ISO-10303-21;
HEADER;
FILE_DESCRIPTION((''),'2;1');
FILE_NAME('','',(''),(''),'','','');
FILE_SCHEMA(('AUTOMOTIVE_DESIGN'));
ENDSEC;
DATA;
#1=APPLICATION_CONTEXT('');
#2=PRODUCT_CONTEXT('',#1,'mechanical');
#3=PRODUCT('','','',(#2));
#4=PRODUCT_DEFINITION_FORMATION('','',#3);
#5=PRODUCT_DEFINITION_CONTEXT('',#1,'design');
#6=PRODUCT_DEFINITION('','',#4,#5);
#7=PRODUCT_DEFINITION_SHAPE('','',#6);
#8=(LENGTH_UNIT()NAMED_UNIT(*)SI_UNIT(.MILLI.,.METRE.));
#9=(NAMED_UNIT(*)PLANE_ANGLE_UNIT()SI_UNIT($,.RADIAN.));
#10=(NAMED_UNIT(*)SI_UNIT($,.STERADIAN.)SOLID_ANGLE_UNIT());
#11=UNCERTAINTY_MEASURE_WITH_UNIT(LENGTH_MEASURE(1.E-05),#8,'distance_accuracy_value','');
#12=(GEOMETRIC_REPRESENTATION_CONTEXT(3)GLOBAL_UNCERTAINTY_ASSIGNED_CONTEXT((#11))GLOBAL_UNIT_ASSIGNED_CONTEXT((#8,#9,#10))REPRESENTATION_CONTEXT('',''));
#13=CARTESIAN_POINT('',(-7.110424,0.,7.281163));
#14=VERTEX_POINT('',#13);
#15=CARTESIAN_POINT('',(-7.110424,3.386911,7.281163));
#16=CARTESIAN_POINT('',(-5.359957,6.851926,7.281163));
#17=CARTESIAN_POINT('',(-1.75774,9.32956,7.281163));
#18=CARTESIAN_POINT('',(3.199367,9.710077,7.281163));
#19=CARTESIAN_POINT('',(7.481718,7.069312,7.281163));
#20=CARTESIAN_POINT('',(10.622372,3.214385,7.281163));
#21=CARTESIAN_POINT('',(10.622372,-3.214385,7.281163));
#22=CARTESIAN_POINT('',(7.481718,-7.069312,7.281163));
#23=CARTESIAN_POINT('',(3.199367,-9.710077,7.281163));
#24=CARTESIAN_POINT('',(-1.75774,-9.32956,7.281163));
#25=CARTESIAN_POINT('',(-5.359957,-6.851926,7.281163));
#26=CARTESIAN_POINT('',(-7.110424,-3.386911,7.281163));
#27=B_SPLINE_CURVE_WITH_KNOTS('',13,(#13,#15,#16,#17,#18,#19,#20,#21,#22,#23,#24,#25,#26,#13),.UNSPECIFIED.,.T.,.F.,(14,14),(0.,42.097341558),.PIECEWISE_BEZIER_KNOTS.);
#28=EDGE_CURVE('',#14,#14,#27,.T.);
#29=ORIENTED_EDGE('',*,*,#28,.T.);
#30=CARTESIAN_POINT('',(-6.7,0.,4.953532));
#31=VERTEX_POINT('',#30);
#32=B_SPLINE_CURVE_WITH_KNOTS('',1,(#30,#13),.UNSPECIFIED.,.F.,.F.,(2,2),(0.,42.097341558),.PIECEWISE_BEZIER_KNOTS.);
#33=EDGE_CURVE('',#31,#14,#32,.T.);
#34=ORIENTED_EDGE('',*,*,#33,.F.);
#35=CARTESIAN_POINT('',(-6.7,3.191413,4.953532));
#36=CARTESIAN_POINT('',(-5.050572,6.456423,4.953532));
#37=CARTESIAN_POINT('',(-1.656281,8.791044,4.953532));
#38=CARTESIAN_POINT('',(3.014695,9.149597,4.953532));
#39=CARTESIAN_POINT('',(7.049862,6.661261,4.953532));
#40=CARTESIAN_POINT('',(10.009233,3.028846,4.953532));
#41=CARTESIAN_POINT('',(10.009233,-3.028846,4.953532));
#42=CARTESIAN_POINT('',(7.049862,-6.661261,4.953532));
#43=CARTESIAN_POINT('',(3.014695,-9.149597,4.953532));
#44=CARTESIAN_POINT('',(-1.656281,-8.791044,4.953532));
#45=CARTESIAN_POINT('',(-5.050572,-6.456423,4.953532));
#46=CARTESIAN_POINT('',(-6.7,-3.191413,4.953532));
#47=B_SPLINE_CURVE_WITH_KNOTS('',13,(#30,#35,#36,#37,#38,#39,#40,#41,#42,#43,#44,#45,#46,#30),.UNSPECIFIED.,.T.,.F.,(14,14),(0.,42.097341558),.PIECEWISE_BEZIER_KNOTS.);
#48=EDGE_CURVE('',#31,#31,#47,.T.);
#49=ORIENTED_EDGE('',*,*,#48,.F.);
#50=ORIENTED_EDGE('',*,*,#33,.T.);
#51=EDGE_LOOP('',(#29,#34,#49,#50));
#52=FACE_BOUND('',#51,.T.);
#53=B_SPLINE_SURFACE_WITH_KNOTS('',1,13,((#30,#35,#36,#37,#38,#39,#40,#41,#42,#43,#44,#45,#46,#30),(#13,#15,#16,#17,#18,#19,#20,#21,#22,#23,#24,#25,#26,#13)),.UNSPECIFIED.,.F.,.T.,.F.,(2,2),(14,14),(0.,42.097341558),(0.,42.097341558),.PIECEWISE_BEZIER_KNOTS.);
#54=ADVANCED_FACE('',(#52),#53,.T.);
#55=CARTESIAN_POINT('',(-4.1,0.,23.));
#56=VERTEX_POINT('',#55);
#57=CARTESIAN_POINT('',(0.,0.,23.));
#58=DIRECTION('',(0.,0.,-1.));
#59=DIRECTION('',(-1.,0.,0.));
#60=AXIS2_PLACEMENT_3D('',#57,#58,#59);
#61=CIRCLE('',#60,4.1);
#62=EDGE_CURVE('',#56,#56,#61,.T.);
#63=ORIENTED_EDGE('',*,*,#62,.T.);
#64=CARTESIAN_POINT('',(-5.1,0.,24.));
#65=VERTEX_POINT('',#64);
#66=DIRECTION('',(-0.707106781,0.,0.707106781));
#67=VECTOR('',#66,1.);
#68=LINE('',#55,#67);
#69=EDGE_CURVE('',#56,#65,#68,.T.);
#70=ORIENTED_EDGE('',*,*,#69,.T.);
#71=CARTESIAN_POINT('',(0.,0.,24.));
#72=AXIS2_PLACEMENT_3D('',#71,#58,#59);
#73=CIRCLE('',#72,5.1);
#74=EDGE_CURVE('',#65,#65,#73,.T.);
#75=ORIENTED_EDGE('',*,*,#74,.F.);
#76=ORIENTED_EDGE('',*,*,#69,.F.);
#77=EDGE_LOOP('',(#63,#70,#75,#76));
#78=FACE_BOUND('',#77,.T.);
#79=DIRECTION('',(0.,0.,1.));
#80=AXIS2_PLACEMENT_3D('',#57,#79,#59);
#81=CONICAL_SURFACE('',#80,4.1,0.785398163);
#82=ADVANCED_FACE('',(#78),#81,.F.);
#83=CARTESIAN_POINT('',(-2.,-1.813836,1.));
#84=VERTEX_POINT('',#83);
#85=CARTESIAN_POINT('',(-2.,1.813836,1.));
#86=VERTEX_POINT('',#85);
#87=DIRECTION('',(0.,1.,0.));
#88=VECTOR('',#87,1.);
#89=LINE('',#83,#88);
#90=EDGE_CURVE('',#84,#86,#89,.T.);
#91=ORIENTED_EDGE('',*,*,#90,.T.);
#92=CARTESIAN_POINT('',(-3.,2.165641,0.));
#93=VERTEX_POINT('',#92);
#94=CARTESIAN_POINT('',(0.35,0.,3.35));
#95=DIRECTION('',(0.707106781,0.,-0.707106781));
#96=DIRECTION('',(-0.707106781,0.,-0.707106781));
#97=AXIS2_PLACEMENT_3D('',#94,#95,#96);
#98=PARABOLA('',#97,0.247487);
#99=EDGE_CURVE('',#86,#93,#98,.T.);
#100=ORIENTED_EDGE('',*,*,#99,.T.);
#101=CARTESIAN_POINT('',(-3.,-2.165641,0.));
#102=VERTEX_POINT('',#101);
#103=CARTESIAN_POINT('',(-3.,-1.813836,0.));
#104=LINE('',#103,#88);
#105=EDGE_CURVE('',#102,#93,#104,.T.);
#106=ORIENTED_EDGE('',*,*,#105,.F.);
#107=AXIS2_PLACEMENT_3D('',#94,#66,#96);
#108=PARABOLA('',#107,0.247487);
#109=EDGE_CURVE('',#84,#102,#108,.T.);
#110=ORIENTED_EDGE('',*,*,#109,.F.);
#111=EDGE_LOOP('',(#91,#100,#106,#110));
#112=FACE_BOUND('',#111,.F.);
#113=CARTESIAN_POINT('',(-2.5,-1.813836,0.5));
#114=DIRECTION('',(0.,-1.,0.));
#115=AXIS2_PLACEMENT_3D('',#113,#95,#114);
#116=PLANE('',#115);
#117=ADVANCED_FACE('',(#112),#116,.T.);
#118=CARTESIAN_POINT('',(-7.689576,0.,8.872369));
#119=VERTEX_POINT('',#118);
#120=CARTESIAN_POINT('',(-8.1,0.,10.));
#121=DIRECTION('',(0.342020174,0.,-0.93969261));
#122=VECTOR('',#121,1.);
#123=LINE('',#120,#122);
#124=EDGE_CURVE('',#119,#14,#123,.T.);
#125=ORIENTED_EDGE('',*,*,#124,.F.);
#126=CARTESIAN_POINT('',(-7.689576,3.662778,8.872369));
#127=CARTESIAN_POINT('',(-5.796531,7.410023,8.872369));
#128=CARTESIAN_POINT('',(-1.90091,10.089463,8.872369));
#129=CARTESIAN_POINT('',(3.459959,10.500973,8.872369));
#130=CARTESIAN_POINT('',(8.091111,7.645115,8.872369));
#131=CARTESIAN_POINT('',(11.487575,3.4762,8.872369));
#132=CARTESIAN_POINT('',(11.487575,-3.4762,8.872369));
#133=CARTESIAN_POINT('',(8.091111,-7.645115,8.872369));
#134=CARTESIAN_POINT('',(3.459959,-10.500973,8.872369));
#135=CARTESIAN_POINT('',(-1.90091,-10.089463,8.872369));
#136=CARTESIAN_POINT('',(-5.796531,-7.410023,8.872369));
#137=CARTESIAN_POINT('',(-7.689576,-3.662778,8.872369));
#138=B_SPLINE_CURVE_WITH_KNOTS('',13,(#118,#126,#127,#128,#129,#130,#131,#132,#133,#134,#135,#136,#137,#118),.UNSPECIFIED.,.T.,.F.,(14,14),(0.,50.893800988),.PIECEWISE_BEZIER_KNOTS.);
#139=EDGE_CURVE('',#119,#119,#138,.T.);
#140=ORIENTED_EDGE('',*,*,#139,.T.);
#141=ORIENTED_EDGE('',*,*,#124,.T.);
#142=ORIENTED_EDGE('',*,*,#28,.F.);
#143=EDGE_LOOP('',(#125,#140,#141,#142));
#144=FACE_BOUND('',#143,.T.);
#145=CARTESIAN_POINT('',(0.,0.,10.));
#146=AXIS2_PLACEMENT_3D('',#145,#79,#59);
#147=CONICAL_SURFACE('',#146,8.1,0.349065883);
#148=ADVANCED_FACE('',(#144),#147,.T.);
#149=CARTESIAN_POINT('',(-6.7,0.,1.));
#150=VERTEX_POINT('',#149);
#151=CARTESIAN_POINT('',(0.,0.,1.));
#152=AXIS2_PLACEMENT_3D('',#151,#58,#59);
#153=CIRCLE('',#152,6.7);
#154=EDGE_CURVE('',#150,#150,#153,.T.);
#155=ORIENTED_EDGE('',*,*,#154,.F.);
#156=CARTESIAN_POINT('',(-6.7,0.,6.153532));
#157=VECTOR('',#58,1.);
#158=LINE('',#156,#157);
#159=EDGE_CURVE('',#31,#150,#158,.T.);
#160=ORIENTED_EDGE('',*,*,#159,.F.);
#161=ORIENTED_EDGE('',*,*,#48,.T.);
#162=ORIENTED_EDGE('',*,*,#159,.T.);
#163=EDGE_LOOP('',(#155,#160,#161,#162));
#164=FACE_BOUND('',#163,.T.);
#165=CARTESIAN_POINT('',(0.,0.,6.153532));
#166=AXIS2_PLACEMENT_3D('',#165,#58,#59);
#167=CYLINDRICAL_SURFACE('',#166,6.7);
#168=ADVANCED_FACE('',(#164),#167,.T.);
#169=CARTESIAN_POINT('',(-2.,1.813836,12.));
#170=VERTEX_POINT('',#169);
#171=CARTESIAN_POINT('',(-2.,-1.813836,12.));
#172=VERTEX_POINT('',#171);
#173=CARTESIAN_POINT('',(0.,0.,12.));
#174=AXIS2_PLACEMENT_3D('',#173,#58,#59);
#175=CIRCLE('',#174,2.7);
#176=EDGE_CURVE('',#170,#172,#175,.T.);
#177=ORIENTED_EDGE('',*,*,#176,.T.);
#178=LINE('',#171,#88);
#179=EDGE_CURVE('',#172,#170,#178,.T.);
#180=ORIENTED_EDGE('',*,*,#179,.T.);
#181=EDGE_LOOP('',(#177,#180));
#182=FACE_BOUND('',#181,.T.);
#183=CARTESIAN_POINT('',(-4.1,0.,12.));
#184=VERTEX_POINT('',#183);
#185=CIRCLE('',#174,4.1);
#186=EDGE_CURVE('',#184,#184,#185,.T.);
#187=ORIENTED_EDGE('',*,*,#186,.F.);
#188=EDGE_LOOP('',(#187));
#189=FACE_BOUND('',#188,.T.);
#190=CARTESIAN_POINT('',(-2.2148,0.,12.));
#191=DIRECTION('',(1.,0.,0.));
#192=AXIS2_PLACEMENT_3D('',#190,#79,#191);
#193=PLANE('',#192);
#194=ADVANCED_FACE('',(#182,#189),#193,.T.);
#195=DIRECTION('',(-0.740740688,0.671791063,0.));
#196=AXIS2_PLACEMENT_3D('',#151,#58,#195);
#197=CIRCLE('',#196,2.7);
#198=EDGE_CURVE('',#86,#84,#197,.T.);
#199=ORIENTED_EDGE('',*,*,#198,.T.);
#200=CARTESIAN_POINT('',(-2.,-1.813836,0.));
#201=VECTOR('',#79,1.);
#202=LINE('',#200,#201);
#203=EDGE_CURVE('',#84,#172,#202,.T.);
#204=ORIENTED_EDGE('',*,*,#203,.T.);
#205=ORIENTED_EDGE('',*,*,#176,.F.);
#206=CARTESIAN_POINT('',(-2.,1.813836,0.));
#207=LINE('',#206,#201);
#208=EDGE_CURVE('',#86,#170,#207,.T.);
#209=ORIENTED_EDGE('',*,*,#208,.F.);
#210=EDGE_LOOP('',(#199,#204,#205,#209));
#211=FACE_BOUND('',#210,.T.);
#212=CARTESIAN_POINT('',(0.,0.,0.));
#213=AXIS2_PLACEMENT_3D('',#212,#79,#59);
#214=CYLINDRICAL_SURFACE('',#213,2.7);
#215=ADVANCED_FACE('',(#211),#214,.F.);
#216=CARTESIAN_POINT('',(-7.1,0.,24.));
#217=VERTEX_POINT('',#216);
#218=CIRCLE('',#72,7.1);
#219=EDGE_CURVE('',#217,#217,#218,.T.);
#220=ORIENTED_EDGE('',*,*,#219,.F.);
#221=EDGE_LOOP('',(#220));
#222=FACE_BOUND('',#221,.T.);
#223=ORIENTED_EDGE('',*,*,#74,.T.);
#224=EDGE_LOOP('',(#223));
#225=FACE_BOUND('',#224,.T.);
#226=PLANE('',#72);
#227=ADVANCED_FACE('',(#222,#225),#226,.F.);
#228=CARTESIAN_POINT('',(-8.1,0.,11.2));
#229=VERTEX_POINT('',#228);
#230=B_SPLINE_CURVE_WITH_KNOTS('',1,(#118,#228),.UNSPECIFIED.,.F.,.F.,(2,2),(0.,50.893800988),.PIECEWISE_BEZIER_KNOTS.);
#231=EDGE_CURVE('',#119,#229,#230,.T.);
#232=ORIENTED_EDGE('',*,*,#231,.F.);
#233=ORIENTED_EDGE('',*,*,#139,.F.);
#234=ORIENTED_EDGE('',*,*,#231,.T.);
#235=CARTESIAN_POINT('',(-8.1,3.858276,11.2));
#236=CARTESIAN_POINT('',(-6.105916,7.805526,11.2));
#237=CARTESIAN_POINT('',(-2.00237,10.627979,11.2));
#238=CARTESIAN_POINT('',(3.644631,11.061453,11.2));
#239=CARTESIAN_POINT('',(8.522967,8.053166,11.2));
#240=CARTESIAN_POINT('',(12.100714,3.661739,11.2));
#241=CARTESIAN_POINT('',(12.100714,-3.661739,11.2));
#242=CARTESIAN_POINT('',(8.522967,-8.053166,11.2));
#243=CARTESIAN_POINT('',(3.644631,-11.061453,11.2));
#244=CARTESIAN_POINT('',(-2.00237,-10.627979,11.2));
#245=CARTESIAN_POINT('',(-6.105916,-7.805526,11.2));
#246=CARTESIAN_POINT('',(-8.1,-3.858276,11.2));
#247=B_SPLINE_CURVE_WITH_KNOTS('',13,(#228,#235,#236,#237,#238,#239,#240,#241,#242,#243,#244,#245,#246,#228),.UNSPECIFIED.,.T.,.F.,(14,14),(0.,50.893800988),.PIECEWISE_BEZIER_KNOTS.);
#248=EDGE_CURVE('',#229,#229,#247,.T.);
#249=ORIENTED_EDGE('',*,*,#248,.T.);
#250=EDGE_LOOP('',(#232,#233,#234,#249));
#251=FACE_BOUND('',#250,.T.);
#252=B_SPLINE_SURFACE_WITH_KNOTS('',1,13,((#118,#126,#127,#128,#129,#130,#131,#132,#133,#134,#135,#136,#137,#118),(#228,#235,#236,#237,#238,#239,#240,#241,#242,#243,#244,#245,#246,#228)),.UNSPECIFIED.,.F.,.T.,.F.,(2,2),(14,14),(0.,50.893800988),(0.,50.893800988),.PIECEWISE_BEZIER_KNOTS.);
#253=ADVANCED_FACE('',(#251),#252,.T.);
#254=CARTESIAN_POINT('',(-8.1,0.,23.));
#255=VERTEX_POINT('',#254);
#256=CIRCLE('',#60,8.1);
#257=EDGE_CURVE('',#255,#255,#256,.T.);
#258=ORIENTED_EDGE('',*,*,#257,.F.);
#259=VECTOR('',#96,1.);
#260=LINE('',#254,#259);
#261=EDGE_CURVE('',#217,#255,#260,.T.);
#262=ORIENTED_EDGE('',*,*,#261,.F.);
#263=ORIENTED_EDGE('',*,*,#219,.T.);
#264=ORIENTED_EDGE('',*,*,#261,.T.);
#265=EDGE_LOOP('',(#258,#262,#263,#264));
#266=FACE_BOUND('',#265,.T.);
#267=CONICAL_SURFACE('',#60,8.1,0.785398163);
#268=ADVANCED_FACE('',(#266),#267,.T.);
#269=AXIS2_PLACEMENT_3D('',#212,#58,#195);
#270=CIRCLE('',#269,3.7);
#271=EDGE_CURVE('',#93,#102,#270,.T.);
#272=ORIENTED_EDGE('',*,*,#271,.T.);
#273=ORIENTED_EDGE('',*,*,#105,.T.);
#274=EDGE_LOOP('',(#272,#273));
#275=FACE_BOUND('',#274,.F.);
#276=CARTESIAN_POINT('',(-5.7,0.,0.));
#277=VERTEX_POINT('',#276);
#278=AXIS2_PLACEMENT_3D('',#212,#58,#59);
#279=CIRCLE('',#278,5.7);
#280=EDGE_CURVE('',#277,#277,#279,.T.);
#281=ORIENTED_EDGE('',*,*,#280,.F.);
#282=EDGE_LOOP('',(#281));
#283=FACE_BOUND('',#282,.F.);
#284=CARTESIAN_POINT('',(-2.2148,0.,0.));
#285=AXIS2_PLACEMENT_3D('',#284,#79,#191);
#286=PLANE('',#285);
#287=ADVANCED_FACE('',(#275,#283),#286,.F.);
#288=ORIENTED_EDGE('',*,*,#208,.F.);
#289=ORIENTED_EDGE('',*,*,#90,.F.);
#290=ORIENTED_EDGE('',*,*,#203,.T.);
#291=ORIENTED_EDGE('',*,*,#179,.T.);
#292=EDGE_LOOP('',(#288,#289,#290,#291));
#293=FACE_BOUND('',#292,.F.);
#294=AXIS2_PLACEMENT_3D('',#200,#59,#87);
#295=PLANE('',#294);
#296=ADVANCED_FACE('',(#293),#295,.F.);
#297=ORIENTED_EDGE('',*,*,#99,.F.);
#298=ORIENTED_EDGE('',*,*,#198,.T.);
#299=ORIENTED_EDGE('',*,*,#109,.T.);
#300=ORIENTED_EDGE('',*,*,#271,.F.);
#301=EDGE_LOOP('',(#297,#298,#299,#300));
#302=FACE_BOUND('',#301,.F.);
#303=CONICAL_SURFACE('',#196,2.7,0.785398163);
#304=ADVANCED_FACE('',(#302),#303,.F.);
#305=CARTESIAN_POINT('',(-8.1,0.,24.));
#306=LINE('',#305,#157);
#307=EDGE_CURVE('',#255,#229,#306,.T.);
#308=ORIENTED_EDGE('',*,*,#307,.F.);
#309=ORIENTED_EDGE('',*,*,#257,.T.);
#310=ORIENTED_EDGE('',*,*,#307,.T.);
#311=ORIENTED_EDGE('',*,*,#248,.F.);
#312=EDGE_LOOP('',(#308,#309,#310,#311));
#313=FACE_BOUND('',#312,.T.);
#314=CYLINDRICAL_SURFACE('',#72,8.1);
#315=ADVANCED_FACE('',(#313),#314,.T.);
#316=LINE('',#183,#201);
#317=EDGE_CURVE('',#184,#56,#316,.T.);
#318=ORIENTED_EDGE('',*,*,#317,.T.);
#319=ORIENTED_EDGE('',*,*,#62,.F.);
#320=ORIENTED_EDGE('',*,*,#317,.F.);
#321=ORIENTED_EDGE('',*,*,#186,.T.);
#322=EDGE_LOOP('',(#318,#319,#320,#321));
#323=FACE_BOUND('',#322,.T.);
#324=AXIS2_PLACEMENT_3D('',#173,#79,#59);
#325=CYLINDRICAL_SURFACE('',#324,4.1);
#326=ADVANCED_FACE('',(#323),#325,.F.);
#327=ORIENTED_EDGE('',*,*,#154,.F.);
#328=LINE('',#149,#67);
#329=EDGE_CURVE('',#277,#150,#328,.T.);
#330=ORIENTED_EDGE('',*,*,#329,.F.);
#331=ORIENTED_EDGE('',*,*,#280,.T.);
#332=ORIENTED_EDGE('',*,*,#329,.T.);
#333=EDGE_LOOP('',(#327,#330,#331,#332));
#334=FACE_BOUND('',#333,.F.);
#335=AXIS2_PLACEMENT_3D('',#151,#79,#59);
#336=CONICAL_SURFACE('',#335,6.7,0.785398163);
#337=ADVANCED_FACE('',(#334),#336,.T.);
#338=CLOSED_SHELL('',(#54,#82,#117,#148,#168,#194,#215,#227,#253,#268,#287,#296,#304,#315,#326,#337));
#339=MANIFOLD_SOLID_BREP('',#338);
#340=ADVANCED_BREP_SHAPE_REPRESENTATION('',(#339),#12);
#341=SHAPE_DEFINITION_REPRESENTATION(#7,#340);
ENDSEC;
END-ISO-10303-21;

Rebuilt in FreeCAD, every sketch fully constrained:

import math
import FreeCAD as App
import Part
import Sketcher

V = App.Vector
Q = App.Units.Quantity


def edges_at(feature, points):
    """Names of the edges that pass closest to the given points."""
    edges = feature.Shape.Edges
    near = lambda p: min(range(len(edges)), key=lambda i: edges[i].distToShape(Part.Vertex(*p))[0])
    return sorted({f"Edge{near(p) + 1}" for p in points})

doc = App.newDocument("Part")
body = doc.addObject("PartDesign::Body", "Body")

# Sketch on XZ plane
sketch1 = doc.addObject("Sketcher::SketchObject", "Sketch")
body.addObject(sketch1)
sketch1.AttachmentSupport = (doc.XZ_Plane, [""])
sketch1.MapMode = "FlatFace"
sketch1.addGeometry([
    Part.LineSegment(V(-6.7, 0, 0), V(-2.7, 0, 0)),  # 0
    Part.LineSegment(V(-2.7, 0, 0), V(-2.7, 12, 0)),  # 1
    Part.LineSegment(V(-2.7, 12, 0), V(-4.1, 12, 0)),  # 2
    Part.LineSegment(V(-4.1, 12, 0), V(-4.1, 24, 0)),  # 3
    Part.LineSegment(V(-4.1, 24, 0), V(-8.1, 24, 0)),  # 4
    Part.LineSegment(V(-8.1, 24, 0), V(-8.1, 10, 0)),  # 5
    Part.LineSegment(V(-8.1, 10, 0), V(-6.7, 6.153532, 0)),  # 6
    Part.LineSegment(V(-6.7, 6.153532, 0), V(-6.7, 0, 0)),  # 7
], False)
sketch1.addConstraint([
    Sketcher.Constraint("Coincident", 0, 2, 1, 1),
    Sketcher.Constraint("Coincident", 1, 2, 2, 1),
    Sketcher.Constraint("Coincident", 2, 2, 3, 1),
    Sketcher.Constraint("Coincident", 3, 2, 4, 1),
    Sketcher.Constraint("Coincident", 4, 2, 5, 1),
    Sketcher.Constraint("Coincident", 5, 2, 6, 1),
    Sketcher.Constraint("Coincident", 6, 2, 7, 1),
    Sketcher.Constraint("Coincident", 7, 2, 0, 1),
    Sketcher.Constraint("Horizontal", 0),
    Sketcher.Constraint("Vertical", 1),
    Sketcher.Constraint("Horizontal", 2),
    Sketcher.Constraint("Vertical", 3),
    Sketcher.Constraint("Horizontal", 4),
    Sketcher.Constraint("Vertical", 5),
    Sketcher.Constraint("Vertical", 7),
    Sketcher.Constraint("PointOnObject", 0, 2, -1),
    Sketcher.Constraint("Equal", 0, 4),
    Sketcher.Constraint("Equal", 1, 3),
    Sketcher.Constraint("DistanceX", 0, 1, 0, 2, 4.0),
    Sketcher.Constraint("DistanceY", 1, 1, 1, 2, 12.0),
    Sketcher.Constraint("DistanceY", 5, 2, 5, 1, 14.0),
    Sketcher.Constraint("Angle", 6, Q("-69.999998 deg")),
    Sketcher.Constraint("DistanceX", 2, 2, 2, 1, 1.4),
    Sketcher.Constraint("DistanceX", 0, 2, -1, 1, 2.7),
])
revolution = doc.addObject("PartDesign::Revolution", "Revolution")
body.addObject(revolution)
revolution.Profile = sketch1
revolution.ReferenceAxis = (sketch1, ["V_Axis"])
revolution.Angle = 360

# Sketch on XY plane
sketch2 = doc.addObject("Sketcher::SketchObject", "Sketch001")
body.addObject(sketch2)
sketch2.AttachmentSupport = (doc.XY_Plane, [""])
sketch2.MapMode = "FlatFace"
sketch2.addGeometry([
    Part.LineSegment(V(-2, -1.813836, 0), V(-2, 1.813836, 0)),
    Part.ArcOfCircle(Part.Circle(V(0.000001, 0, 0), V(0, 0, 1), 2.700001), math.radians(137.79456), math.radians(222.20544)),
], False)
sketch2.addConstraint([
    Sketcher.Constraint("Coincident", 0, 1, 1, 2),
    Sketcher.Constraint("Coincident", 1, 1, 0, 2),
    Sketcher.Constraint("Vertical", 0),
    Sketcher.Constraint("Coincident", 1, 3, -1, 1),
    Sketcher.Constraint("Radius", 1, 2.700001),
    Sketcher.Constraint("DistanceX", 0, 1, -1, 1, 2.0),
])
pad1 = doc.addObject("PartDesign::Pad", "Pad")
body.addObject(pad1)
pad1.Profile = sketch2
pad1.Length = 12
doc.recompute()

chamfer = doc.addObject("PartDesign::Chamfer", "Chamfer")
body.addObject(chamfer)
chamfer.Base = (pad1, edges_at(pad1, [
    (8.1, 0, 24),
    (6.7, 0, 0),
    (2.7, 0, 0),
    (-2, 0, 0),
    (4.1, 0, 24),
]))
chamfer.Size = 1
doc.recompute()

chamfer2 = doc.addObject("PartDesign::Chamfer", "Chamfer001")
body.addObject(chamfer2)
chamfer2.Base = (chamfer, edges_at(chamfer, [(8.1, 0, 10), (6.7, 0, 6.154)]))
chamfer2.Size = 1.2

doc.recompute()
